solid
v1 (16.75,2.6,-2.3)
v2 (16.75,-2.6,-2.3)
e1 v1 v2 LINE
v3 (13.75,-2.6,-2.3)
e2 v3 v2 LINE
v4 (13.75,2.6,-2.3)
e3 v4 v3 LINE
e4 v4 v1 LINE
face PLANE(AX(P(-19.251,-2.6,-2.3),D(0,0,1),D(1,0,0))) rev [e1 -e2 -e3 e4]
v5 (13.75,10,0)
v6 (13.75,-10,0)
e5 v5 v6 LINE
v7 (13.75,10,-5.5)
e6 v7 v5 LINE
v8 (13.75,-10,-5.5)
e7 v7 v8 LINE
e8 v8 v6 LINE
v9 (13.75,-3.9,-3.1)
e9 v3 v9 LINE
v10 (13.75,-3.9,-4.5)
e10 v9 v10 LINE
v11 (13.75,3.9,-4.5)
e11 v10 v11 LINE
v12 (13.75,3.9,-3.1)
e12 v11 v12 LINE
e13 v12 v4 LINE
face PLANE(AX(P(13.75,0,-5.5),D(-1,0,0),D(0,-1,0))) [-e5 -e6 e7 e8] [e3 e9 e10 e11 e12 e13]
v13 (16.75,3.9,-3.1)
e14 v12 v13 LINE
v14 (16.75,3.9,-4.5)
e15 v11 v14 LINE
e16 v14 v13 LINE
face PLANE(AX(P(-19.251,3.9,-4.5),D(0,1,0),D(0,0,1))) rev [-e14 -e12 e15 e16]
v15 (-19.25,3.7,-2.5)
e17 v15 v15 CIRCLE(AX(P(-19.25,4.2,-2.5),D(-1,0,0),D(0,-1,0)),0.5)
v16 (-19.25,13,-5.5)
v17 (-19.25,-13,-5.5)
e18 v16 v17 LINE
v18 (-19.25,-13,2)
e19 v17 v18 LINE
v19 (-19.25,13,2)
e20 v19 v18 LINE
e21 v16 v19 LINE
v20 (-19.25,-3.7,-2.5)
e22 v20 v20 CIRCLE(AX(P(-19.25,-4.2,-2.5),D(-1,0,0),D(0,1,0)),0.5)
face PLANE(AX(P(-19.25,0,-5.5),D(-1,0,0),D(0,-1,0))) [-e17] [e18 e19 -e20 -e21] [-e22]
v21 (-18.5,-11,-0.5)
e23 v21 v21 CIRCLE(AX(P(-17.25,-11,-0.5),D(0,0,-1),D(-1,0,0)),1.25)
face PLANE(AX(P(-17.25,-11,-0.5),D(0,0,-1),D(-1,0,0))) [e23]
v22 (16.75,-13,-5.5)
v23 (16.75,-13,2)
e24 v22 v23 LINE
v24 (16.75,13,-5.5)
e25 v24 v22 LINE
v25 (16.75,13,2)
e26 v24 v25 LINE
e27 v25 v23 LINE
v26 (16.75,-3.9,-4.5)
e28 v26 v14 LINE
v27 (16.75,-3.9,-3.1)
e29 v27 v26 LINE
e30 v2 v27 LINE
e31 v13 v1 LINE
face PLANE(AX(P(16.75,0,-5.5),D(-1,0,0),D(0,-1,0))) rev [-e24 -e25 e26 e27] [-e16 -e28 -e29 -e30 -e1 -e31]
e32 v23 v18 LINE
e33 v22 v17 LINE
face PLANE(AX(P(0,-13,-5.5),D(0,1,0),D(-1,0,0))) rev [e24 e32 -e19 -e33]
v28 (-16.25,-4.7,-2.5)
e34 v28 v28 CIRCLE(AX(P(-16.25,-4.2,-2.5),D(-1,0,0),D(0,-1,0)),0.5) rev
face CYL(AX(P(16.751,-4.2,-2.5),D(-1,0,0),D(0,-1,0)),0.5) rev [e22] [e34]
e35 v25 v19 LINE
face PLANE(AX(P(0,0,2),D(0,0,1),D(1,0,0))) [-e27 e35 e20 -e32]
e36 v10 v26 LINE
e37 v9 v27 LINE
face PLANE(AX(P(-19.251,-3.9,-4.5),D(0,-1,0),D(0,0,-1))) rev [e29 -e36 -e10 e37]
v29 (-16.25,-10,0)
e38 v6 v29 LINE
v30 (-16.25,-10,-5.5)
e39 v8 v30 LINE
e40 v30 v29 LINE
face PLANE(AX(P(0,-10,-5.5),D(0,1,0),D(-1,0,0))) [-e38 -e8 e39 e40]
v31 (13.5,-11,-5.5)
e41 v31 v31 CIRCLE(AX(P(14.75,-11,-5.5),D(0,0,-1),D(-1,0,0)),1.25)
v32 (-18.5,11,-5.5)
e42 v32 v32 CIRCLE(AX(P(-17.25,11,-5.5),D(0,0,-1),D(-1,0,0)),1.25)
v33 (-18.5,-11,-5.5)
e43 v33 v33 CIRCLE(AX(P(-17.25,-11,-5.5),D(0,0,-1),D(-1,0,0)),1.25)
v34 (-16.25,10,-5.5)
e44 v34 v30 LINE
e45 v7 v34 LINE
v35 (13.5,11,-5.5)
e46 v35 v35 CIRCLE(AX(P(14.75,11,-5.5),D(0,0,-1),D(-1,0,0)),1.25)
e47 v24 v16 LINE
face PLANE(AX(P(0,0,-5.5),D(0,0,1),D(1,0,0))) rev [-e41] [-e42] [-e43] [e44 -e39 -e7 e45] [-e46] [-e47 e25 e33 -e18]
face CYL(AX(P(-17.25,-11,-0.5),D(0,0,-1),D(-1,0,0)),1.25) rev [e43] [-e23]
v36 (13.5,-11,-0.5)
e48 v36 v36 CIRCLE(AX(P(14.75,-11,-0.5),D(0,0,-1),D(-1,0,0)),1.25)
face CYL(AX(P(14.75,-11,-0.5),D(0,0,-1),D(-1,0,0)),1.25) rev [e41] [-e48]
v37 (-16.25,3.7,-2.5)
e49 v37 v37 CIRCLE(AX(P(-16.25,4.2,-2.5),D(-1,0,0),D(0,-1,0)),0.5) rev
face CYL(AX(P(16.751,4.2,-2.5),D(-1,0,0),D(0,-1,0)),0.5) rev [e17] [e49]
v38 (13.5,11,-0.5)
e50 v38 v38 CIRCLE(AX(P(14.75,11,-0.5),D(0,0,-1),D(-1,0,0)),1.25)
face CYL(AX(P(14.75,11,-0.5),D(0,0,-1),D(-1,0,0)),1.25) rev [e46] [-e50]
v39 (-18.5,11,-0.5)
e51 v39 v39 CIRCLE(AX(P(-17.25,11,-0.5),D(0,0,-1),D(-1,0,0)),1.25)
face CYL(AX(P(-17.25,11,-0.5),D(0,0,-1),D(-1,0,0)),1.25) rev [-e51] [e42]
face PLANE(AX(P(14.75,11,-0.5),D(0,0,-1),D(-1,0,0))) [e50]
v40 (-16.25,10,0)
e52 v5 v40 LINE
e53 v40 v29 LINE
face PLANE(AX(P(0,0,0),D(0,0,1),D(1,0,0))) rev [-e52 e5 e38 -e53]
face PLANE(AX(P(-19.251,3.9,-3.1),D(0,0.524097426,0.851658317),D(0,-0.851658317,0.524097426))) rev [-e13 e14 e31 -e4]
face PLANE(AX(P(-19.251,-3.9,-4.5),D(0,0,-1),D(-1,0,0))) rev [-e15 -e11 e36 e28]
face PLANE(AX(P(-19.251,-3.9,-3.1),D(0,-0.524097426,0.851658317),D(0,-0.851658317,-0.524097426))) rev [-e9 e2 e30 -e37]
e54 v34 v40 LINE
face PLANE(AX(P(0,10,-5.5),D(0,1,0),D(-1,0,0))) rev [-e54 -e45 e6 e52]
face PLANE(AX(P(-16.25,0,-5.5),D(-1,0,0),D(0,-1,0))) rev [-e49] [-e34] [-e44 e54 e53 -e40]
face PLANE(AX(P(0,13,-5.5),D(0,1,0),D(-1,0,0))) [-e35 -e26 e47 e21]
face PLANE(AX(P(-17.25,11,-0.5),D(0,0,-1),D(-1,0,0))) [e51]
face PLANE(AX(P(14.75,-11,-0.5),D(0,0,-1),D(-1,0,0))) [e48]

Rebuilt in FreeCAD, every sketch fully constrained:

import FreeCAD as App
import Part
import Sketcher
Q = App.Units.Quantity


def add_polygon(sketch, points):
    """Adds a closed chain of lines whose ends are joined by coincident constraints."""
    first, n = sketch.GeometryCount, len(points)
    for a, b in zip(points, points[1:] + points[:1]):
        sketch.addGeometry(Part.LineSegment(App.Vector(*a, 0), App.Vector(*b, 0)), False)
    for i in range(n):
        sketch.addConstraint(Sketcher.Constraint("Coincident", first + i, 2, first + (i + 1) % n, 1))

doc = App.newDocument("Part")
body = doc.addObject("PartDesign::Body", "Body")

# Sketch on XY plane
sketch1 = body.newObject("Sketcher::SketchObject", "Sketch")
sketch1.AttachmentSupport = (doc.getObject("XY_Plane"), [""])
sketch1.MapMode = "FlatFace"
add_polygon(sketch1, [(-19, 13), (-19, -13), (17, -13), (17, 13)])  # lines 0-3
add_polygon(sketch1, [(14, -10), (-16, -10), (-16, 10), (14, 10)])  # lines 4-7
sketch1.addConstraint([
    Sketcher.Constraint("Vertical", 0),
    Sketcher.Constraint("Horizontal", 1),
    Sketcher.Constraint("Vertical", 2),
    Sketcher.Constraint("Horizontal", 3),
    Sketcher.Constraint("Horizontal", 4),
    Sketcher.Constraint("Vertical", 5),
    Sketcher.Constraint("Horizontal", 6),
    Sketcher.Constraint("Vertical", 7),
    Sketcher.Constraint("DistanceX", 1, 1, 1, 2, Q("36 mm")),
    Sketcher.Constraint("DistanceX", 4, 2, 4, 1, Q("30 mm")),
    Sketcher.Constraint("DistanceY", 0, 2, 0, 1, Q("26 mm")),
    Sketcher.Constraint("DistanceY", 5, 1, 5, 2, Q("20 mm")),
    Sketcher.Constraint("DistanceY", 0, 2, -1, 1, Q("13 mm")),
    Sketcher.Constraint("DistanceY", 4, 2, -1, 1, Q("10 mm")),
    Sketcher.Constraint("DistanceX", 0, 2, 4, 2, Q("3 mm")),
    Sketcher.Constraint("DistanceX", 0, 2, -1, 1, Q("19.25 mm")),
])
pad1 = body.newObject("PartDesign::Pad", "Pad")
pad1.Profile = sketch1
pad1.Length = 5.5
pad1.Reversed = True

# Sketch on YZ plane
sketch2 = body.newObject("Sketcher::SketchObject", "Sketch001")
sketch2.AttachmentSupport = (doc.getObject("YZ_Plane"), [""])
sketch2.MapMode = "FlatFace"
sketch2.AttachmentOffset = App.Placement(App.Vector(0, 0, 16.75), App.Rotation())
add_polygon(sketch2, [(-3.9, -4.5), (3.9, -4.5), (3.9, -3.1), (2.6, -2.3), (-2.6, -2.3), (-3.9, -3.1)])  # lines 0-5
sketch2.addConstraint([
    Sketcher.Constraint("Horizontal", 0),
    Sketcher.Constraint("Vertical", 1),
    Sketcher.Constraint("Horizontal", 3),
    Sketcher.Constraint("Vertical", 5),
    Sketcher.Constraint("Symmetric", 1, 2, 4, 2, -2),
    Sketcher.Constraint("Equal", 2, 4),
    Sketcher.Constraint("DistanceX", 0, 1, 0, 2, Q("7.8 mm")),
    Sketcher.Constraint("DistanceX", 3, 2, 3, 1, Q("5.2 mm")),
    Sketcher.Constraint("DistanceY", 1, 1, 1, 2, Q("1.4 mm")),
    Sketcher.Constraint("DistanceY", 0, 2, -1, 1, Q("4.5 mm")),
    Sketcher.Constraint("DistanceY", 2, 2, -1, 1, Q("2.3 mm")),
])
pocket1 = body.newObject("PartDesign::Pocket", "Pocket")
pocket1.Profile = sketch2
pocket1.Type = "UpToFirst"

# Sketch on XY plane
sketch3 = body.newObject("Sketcher::SketchObject", "Sketch002")
sketch3.AttachmentSupport = (doc.getObject("XY_Plane"), [""])
sketch3.MapMode = "FlatFace"
add_polygon(sketch3, [(-19, 13), (-19, -13), (17, -13), (17, 13)])  # lines 0-3
sketch3.addConstraint([
    Sketcher.Constraint("Vertical", 0),
    Sketcher.Constraint("Horizontal", 1),
    Sketcher.Constraint("Vertical", 2),
    Sketcher.Constraint("Horizontal", 3),
    Sketcher.Constraint("DistanceX", 1, 1, 1, 2, Q("36 mm")),
    Sketcher.Constraint("DistanceY", 0, 2, 0, 1, Q("26 mm")),
    Sketcher.Constraint("DistanceY", 0, 2, -1, 1, Q("13 mm")),
    Sketcher.Constraint("DistanceX", 0, 2, -1, 1, Q("19.25 mm")),
])
pad2 = body.newObject("PartDesign::Pad", "Pad001")
pad2.Profile = sketch3
pad2.Length = 2

# Sketch on XY plane
sketch4 = body.newObject("Sketcher::SketchObject", "Sketch003")
sketch4.AttachmentSupport = (doc.getObject("XY_Plane"), [""])
sketch4.MapMode = "FlatFace"
sketch4.AttachmentOffset = App.Placement(App.Vector(0, 0, -5.5), App.Rotation())
sketch4.addGeometry([
    Part.Circle(App.Vector(14.8, 11, 0), App.Vector(0, 0, 1), 1.2),
    Part.Circle(App.Vector(-17.2, 11, 0), App.Vector(0, 0, 1), 1.2),
    Part.Circle(App.Vector(-17.2, -11, 0), App.Vector(0, 0, 1), 1.2),
    Part.Circle(App.Vector(14.8, -11, 0), App.Vector(0, 0, 1), 1.2),
], False)
sketch4.addConstraint([
    Sketcher.Constraint("Equal", 0, 1),
    Sketcher.Constraint("Equal", 1, 2),
    Sketcher.Constraint("Equal", 2, 3),
    Sketcher.Constraint("Symmetric", 1, 3, 2, 3, -1),
    Sketcher.Constraint("Symmetric", 0, 3, 3, 3, -1),
    Sketcher.Constraint("Horizontal", 0, 3, 1, 3),
    Sketcher.Constraint("Diameter", 0, Q("2.5 mm")),
    Sketcher.Constraint("DistanceY", -1, 1, 0, 3, Q("11 mm")),
    Sketcher.Constraint("DistanceX", 1, 3, 0, 3, Q("32 mm")),
    Sketcher.Constraint("DistanceX", -1, 1, 0, 3, Q("14.75 mm")),
])
pocket2 = body.newObject("PartDesign::Pocket", "Pocket001")
pocket2.Profile = sketch4
pocket2.Length = 5
pocket2.Reversed = True

# Sketch on YZ plane
sketch5 = body.newObject("Sketcher::SketchObject", "Sketch004")
sketch5.AttachmentSupport = (doc.getObject("YZ_Plane"), [""])
sketch5.MapMode = "FlatFace"
sketch5.AttachmentOffset = App.Placement(App.Vector(0, 0, -19.25), App.Rotation())
sketch5.addGeometry(Part.Circle(App.Vector(4.2, -2.5, 0), App.Vector(0, 0, 1), 0.5), False)
sketch5.addConstraint([
    Sketcher.Constraint("Diameter", 0, Q("1 mm")),
    Sketcher.Constraint("DistanceX", -1, 1, 0, 3, Q("4.2 mm")),
    Sketcher.Constraint("DistanceY", 0, 3, -1, 1, Q("2.5 mm")),
])
pocket3 = body.newObject("PartDesign::Pocket", "Pocket002")
pocket3.Profile = sketch5
pocket3.Type = "UpToFirst"
pocket3.Reversed = True

# Sketch on YZ plane
sketch6 = body.newObject("Sketcher::SketchObject", "Sketch005")
sketch6.AttachmentSupport = (doc.getObject("YZ_Plane"), [""])
sketch6.MapMode = "FlatFace"
sketch6.AttachmentOffset = App.Placement(App.Vector(0, 0, -19.25), App.Rotation())
sketch6.addGeometry(Part.Circle(App.Vector(-4.2, -2.5, 0), App.Vector(0, 0, 1), 0.5), False)
sketch6.addConstraint([
    Sketcher.Constraint("Diameter", 0, Q("1 mm")),
    Sketcher.Constraint("DistanceX", 0, 3, -1, 1, Q("4.2 mm")),
    Sketcher.Constraint("DistanceY", 0, 3, -1, 1, Q("2.5 mm")),
])
pocket4 = body.newObject("PartDesign::Pocket", "Pocket003")
pocket4.Profile = sketch6
pocket4.Type = "UpToFirst"
pocket4.Reversed = True

doc.recompute()
